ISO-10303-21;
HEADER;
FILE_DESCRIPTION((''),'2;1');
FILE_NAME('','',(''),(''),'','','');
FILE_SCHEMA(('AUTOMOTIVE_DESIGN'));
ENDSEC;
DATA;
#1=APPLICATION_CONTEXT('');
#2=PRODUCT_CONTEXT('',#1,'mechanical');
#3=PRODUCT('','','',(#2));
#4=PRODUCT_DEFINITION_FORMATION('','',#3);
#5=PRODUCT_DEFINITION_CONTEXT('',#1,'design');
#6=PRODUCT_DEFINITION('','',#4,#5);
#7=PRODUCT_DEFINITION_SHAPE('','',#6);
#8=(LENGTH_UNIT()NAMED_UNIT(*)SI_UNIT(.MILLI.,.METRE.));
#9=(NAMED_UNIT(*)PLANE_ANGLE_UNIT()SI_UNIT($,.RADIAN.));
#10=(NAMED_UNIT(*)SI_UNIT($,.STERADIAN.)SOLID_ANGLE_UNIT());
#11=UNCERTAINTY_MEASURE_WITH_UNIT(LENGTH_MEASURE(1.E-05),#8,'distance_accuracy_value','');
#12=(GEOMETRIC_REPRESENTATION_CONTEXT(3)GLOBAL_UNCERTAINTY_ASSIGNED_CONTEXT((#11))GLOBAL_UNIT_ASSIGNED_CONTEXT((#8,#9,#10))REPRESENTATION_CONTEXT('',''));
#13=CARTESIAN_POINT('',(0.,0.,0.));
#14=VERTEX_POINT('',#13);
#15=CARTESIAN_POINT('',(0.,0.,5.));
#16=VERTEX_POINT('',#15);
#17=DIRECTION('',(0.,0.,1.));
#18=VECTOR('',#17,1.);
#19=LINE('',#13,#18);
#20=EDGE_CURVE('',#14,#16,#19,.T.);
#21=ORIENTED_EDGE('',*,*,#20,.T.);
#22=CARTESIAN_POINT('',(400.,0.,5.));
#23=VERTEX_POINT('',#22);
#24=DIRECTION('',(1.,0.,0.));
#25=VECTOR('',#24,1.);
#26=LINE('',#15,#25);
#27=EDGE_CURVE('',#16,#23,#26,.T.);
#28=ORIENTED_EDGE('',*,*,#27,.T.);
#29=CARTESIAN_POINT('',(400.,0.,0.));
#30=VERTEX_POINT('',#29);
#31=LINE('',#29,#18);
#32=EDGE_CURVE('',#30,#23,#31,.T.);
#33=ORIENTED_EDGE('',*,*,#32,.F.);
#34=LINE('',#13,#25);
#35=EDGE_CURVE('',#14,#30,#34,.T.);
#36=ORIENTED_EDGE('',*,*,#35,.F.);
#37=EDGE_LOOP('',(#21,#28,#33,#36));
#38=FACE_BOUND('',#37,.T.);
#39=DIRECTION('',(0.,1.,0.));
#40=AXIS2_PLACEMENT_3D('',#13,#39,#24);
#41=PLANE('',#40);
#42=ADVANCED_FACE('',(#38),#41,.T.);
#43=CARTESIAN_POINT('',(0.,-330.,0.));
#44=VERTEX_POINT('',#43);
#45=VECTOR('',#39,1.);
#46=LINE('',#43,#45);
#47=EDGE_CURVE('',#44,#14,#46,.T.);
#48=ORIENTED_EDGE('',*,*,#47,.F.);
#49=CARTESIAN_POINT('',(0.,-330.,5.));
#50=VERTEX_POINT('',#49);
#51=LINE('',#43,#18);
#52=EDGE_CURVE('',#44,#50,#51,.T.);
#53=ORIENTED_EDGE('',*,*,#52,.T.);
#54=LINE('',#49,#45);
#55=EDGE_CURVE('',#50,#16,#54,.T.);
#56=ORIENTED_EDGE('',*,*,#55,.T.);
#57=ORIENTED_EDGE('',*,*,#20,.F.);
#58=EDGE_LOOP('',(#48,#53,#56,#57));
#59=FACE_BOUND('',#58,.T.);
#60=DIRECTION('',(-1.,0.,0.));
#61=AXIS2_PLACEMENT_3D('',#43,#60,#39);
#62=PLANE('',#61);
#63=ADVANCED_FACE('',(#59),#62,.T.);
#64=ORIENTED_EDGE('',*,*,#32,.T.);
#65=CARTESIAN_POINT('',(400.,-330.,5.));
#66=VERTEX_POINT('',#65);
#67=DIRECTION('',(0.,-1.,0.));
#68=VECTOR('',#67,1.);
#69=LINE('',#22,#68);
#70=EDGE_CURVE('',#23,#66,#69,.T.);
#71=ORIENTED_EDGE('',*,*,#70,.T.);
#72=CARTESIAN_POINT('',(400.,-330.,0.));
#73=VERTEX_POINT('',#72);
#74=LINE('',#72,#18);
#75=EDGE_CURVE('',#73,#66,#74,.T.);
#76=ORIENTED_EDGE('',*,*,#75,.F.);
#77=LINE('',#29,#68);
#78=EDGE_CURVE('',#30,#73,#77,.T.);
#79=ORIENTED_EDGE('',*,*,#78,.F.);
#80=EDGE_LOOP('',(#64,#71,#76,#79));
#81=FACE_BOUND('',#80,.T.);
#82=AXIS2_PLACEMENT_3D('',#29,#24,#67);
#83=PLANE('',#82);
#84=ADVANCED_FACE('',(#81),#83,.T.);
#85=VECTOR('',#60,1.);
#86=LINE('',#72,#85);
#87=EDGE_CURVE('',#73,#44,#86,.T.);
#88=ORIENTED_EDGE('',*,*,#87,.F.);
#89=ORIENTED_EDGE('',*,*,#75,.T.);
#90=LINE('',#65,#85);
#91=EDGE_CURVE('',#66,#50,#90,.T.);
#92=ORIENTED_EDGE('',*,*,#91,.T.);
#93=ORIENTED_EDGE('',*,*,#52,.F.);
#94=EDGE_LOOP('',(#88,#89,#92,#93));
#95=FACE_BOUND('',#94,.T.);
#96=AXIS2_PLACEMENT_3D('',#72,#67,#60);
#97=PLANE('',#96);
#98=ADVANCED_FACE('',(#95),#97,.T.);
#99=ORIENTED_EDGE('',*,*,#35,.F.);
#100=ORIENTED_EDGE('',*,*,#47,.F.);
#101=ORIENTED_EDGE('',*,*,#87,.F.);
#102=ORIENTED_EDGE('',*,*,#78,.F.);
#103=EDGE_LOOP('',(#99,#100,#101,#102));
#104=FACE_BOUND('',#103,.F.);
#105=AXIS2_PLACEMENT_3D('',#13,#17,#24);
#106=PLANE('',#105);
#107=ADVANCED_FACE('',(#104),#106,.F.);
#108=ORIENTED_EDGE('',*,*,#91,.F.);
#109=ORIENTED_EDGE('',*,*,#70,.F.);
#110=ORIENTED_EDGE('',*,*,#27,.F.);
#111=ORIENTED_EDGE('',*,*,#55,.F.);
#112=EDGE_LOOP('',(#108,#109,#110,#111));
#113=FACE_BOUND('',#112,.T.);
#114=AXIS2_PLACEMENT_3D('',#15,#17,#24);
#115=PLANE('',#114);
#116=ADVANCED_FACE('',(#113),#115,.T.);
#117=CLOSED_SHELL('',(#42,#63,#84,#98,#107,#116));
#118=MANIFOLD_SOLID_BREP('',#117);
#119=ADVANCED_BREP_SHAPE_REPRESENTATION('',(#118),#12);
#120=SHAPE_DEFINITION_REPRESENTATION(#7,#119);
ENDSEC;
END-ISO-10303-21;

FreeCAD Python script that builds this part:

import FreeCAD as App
import Part
import Sketcher


def add_polygon(sketch, points):
    """Adds a closed chain of lines whose ends are joined by coincident constraints."""
    first, n = sketch.GeometryCount, len(points)
    for a, b in zip(points, points[1:] + points[:1]):
        sketch.addGeometry(Part.LineSegment(App.Vector(*a, 0), App.Vector(*b, 0)), False)
    for i in range(n):
        sketch.addConstraint(Sketcher.Constraint("Coincident", first + i, 2, first + (i + 1) % n, 1))

doc = App.newDocument("Part")
params = doc.addObject("Spreadsheet::Sheet", "Params")
for row, (alias, value) in enumerate([
    ("sketch1_width", "400 mm"),
    ("sketch1_height", "330 mm"),
    ("pad1_length", "5 mm"),
], start=1):
    params.set(f"A{row}", alias)
    params.set(f"B{row}", "=" + value)
    params.setAlias(f"B{row}", alias)

body = doc.addObject("PartDesign::Body", "Body")

# Sketch on XY plane
sketch1 = body.newObject("Sketcher::SketchObject", "Sketch")
sketch1.AttachmentSupport = (doc.getObject("XY_Plane"), [""])
sketch1.MapMode = "FlatFace"
add_polygon(sketch1, [(400, 0), (0, 0), (0, -330), (400, -330)])  # lines 0-3
sketch1.addConstraint([
    Sketcher.Constraint("Horizontal", 0),
    Sketcher.Constraint("Vertical", 1),
    Sketcher.Constraint("Horizontal", 2),
    Sketcher.Constraint("Vertical", 3),
    Sketcher.Constraint("Coincident", 0, 2, -1, 1),
    Sketcher.Constraint("DistanceX", 0, 2, 0, 1, 400.0),
    Sketcher.Constraint("DistanceY", 1, 2, 1, 1, 330.0),
])
sketch1.setExpression("Constraints[9]", "Params.sketch1_width")
sketch1.setExpression("Constraints[10]", "Params.sketch1_height")
pad1 = body.newObject("PartDesign::Pad", "Pad")
pad1.Profile = sketch1
pad1.setExpression("Length", "Params.pad1_length")

doc.recompute()
